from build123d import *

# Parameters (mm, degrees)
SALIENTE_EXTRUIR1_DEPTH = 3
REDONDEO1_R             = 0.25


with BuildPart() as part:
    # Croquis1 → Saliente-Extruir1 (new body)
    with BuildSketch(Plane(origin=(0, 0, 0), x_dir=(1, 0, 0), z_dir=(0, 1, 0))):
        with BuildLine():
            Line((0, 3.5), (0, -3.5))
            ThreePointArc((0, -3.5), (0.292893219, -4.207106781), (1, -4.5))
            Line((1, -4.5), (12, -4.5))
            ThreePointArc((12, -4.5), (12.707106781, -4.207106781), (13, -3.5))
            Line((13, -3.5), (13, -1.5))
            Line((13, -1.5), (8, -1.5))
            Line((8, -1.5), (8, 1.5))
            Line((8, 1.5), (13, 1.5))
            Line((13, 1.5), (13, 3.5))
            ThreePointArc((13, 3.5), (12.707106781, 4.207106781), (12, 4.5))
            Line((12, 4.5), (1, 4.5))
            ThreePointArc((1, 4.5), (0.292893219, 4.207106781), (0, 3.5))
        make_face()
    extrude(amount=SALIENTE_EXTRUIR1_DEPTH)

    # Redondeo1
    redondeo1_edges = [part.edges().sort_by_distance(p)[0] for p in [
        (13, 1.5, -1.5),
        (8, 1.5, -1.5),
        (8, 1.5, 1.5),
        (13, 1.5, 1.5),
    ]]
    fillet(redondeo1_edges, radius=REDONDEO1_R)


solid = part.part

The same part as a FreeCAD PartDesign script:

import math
import FreeCAD as App
import Part
import Sketcher


def edges_at(feature, points):
    """Names of the edges that pass closest to the given points."""
    edges = feature.Shape.Edges
    near = lambda p: min(range(len(edges)), key=lambda i: edges[i].distToShape(Part.Vertex(*p))[0])
    return sorted({f"Edge{near(p) + 1}" for p in points})

doc = App.newDocument("Part")
params = doc.addObject("Spreadsheet::Sheet", "Params")
for row, (alias, value) in enumerate([
    ("sketch1_radius", "1 mm"),
    ("sketch1_width", "11 mm"),
    ("sketch1_width2", "5 mm"),
    ("sketch1_height", "7 mm"),
    ("sketch1_height2", "2 mm"),
    ("pad1_length", "3 mm"),
    ("fillet_radius", "0.25 mm"),
], start=1):
    params.set(f"A{row}", alias)
    params.set(f"B{row}", "=" + value)
    params.setAlias(f"B{row}", alias)

body = doc.addObject("PartDesign::Body", "Body")

# Sketch on XZ plane
sketch1 = doc.addObject("Sketcher::SketchObject", "Sketch")
body.addObject(sketch1)
sketch1.AttachmentSupport = (doc.XZ_Plane, [""])
sketch1.MapMode = "FlatFace"
sketch1.addGeometry(Part.LineSegment(App.Vector(0, -3.5, 0), App.Vector(0, 3.5, 0)), False)
sketch1.addGeometry(Part.ArcOfCircle(Part.Circle(App.Vector(1, 3.5, 0), App.Vector(0, 0, 1), 1), math.radians(90), math.radians(180)), False)
sketch1.addGeometry(Part.LineSegment(App.Vector(1, 4.5, 0), App.Vector(12, 4.5, 0)), False)
sketch1.addGeometry(Part.ArcOfCircle(Part.Circle(App.Vector(12, 3.5, 0), App.Vector(0, 0, 1), 1), math.radians(0), math.radians(90)), False)
sketch1.addGeometry(Part.LineSegment(App.Vector(13, 3.5, 0), App.Vector(13, 1.5, 0)), False)
sketch1.addGeometry(Part.LineSegment(App.Vector(13, 1.5, 0), App.Vector(8, 1.5, 0)), False)
sketch1.addGeometry(Part.LineSegment(App.Vector(8, 1.5, 0), App.Vector(8, -1.5, 0)), False)
sketch1.addGeometry(Part.LineSegment(App.Vector(8, -1.5, 0), App.Vector(13, -1.5, 0)), False)
sketch1.addGeometry(Part.LineSegment(App.Vector(13, -1.5, 0), App.Vector(13, -3.5, 0)), False)
sketch1.addGeometry(Part.ArcOfCircle(Part.Circle(App.Vector(12, -3.5, 0), App.Vector(0, 0, 1), 1), math.radians(-90), math.radians(0)), False)
sketch1.addGeometry(Part.LineSegment(App.Vector(12, -4.5, 0), App.Vector(1, -4.5, 0)), False)
sketch1.addGeometry(Part.ArcOfCircle(Part.Circle(App.Vector(1, -3.5, 0), App.Vector(0, 0, 1), 1), math.radians(-180), math.radians(-90)), False)
sketch1.addConstraint(Sketcher.Constraint("Tangent", 0, 2, 1, 2))
sketch1.addConstraint(Sketcher.Constraint("Tangent", 1, 1, 2, 1))
sketch1.addConstraint(Sketcher.Constraint("Tangent", 2, 2, 3, 2))
sketch1.addConstraint(Sketcher.Constraint("Tangent", 3, 1, 4, 1))
sketch1.addConstraint(Sketcher.Constraint("Coincident", 4, 2, 5, 1))
sketch1.addConstraint(Sketcher.Constraint("Coincident", 5, 2, 6, 1))
sketch1.addConstraint(Sketcher.Constraint("Coincident", 6, 2, 7, 1))
sketch1.addConstraint(Sketcher.Constraint("Coincident", 7, 2, 8, 1))
sketch1.addConstraint(Sketcher.Constraint("Tangent", 8, 2, 9, 2))
sketch1.addConstraint(Sketcher.Constraint("Tangent", 9, 1, 10, 1))
sketch1.addConstraint(Sketcher.Constraint("Tangent", 10, 2, 11, 2))
sketch1.addConstraint(Sketcher.Constraint("Tangent", 11, 1, 0, 1))
sketch1.addConstraint(Sketcher.Constraint("Vertical", 0))
sketch1.addConstraint(Sketcher.Constraint("Horizontal", 2))
sketch1.addConstraint(Sketcher.Constraint("Vertical", 4))
sketch1.addConstraint(Sketcher.Constraint("Horizontal", 5))
sketch1.addConstraint(Sketcher.Constraint("Vertical", 6))
sketch1.addConstraint(Sketcher.Constraint("Horizontal", 7))
sketch1.addConstraint(Sketcher.Constraint("Vertical", 8))
sketch1.addConstraint(Sketcher.Constraint("Horizontal", 10))
sketch1.addConstraint(Sketcher.Constraint("Equal", 1, 3))
sketch1.addConstraint(Sketcher.Constraint("Equal", 3, 9))
sketch1.addConstraint(Sketcher.Constraint("Equal", 9, 11))
sketch1.addConstraint(Sketcher.Constraint("Symmetric", 0, 2, 11, 1, -1, 1))
sketch1.addConstraint(Sketcher.Constraint("Symmetric", 4, 2, 7, 2, -1))
sketch1.addConstraint(Sketcher.Constraint("Radius", 1, 1.0))
sketch1.addConstraint(Sketcher.Constraint("DistanceX", 2, 1, 2, 2, 11.0))
sketch1.addConstraint(Sketcher.Constraint("DistanceX", 5, 2, 5, 1, 5.0))
sketch1.addConstraint(Sketcher.Constraint("DistanceY", 0, 1, 0, 2, 7.0))
sketch1.addConstraint(Sketcher.Constraint("DistanceY", 4, 2, 4, 1, 2.0))
sketch1.setExpression("Constraints[25]", "Params.sketch1_radius")
sketch1.setExpression("Constraints[26]", "Params.sketch1_width")
sketch1.setExpression("Constraints[27]", "Params.sketch1_width2")
sketch1.setExpression("Constraints[28]", "Params.sketch1_height")
sketch1.setExpression("Constraints[29]", "Params.sketch1_height2")
pad1 = doc.addObject("PartDesign::Pad", "Pad")
body.addObject(pad1)
pad1.Profile = sketch1
pad1.setExpression("Length", "Params.pad1_length")
pad1.Reversed = True
doc.recompute()

fillet = doc.addObject("PartDesign::Fillet", "Fillet")
body.addObject(fillet)
fillet.Base = (pad1, edges_at(pad1, [
    (13, 1.5, -1.5),
    (8, 1.5, -1.5),
    (8, 1.5, 1.5),
    (13, 1.5, 1.5),
]))
fillet.setExpression("Radius", "Params.fillet_radius")

doc.recompute()
